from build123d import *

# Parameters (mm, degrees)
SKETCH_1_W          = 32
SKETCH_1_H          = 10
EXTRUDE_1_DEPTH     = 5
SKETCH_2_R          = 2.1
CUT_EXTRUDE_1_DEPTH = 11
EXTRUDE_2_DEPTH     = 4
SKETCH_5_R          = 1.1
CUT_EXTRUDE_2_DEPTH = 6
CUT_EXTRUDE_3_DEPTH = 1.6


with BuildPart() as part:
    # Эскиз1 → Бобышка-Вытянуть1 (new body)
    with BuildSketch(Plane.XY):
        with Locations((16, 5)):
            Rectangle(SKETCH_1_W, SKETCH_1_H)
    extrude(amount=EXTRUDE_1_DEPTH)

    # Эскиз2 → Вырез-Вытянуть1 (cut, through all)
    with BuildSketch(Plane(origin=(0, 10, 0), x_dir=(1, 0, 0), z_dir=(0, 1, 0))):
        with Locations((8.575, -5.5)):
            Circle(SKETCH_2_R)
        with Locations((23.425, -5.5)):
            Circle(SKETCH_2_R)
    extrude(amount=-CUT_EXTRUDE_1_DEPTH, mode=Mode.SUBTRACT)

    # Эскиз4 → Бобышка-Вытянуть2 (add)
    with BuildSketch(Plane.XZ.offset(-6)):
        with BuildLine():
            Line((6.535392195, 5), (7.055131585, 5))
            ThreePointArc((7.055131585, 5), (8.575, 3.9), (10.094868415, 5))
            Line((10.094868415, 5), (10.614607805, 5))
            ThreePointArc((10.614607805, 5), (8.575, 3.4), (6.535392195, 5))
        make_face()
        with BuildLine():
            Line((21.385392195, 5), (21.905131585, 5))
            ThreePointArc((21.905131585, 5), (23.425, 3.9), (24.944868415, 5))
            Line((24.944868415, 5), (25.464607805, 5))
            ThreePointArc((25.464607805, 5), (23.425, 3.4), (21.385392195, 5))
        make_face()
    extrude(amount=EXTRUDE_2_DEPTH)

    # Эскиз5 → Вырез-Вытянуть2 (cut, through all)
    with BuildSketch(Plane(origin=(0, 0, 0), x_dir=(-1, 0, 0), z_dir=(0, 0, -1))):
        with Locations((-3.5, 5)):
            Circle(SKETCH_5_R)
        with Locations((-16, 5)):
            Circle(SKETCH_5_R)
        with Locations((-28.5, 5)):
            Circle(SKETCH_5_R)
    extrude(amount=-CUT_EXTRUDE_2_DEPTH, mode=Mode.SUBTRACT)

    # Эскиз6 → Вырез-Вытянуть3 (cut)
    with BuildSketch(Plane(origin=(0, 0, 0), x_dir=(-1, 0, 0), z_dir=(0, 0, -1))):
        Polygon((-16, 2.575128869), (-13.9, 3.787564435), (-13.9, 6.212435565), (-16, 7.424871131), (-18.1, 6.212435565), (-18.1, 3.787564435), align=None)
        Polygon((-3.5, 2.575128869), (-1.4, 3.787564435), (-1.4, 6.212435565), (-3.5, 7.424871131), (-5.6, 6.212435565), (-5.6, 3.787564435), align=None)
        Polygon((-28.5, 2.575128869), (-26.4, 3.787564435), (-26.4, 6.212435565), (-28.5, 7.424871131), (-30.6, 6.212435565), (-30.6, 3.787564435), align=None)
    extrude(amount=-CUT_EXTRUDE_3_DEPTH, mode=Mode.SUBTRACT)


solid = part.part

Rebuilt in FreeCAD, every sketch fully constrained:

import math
import FreeCAD as App
import Part
import Sketcher

V = App.Vector
Q = App.Units.Quantity

doc = App.newDocument("Part")
body = doc.addObject("PartDesign::Body", "Body")

sketch1 = body.newObject("Sketcher::SketchObject", "Sketch")
sketch1.AttachmentSupport = (doc.getObject("XY_Plane"), [""])
sketch1.MapMode = "FlatFace"
sketch1.addGeometry(Part.LineSegment(V(0, 10, 0), V(0, 0, 0)), False)
sketch1.addGeometry(Part.LineSegment(V(0, 0, 0), V(32, 0, 0)), False)
sketch1.addGeometry(Part.LineSegment(V(32, 0, 0), V(32, 10, 0)), False)
sketch1.addGeometry(Part.LineSegment(V(32, 10, 0), V(0, 10, 0)), False)
sketch1.addConstraint(Sketcher.Constraint("Coincident", 0, 2, 1, 1))
sketch1.addConstraint(Sketcher.Constraint("Coincident", 1, 2, 2, 1))
sketch1.addConstraint(Sketcher.Constraint("Coincident", 2, 2, 3, 1))
sketch1.addConstraint(Sketcher.Constraint("Coincident", 3, 2, 0, 1))
sketch1.addConstraint(Sketcher.Constraint("Vertical", 0))
sketch1.addConstraint(Sketcher.Constraint("Horizontal", 1))
sketch1.addConstraint(Sketcher.Constraint("Vertical", 2))
sketch1.addConstraint(Sketcher.Constraint("Horizontal", 3))
sketch1.addConstraint(Sketcher.Constraint("Coincident", 0, 2, -1, 1))
sketch1.addConstraint(Sketcher.Constraint("DistanceX", 1, 1, 1, 2, Q("32 mm")))
sketch1.addConstraint(Sketcher.Constraint("DistanceY", 0, 2, 0, 1, Q("10 mm")))
pad1 = body.newObject("PartDesign::Pad", "Pad")
pad1.Profile = sketch1
pad1.Length = 5

sketch2 = body.newObject("Sketcher::SketchObject", "Sketch001")
sketch2.AttachmentSupport = (doc.getObject("XZ_Plane"), [""])
sketch2.MapMode = "FlatFace"
sketch2.AttachmentOffset = App.Placement(V(0, 0, -10), App.Rotation())
sketch2.addGeometry(Part.Circle(V(8.575, 5.5, 0), V(0, 0, 1), 2.1), False)
sketch2.addGeometry(Part.Circle(V(23.425, 5.5, 0), V(0, 0, 1), 2.1), False)
sketch2.addConstraint(Sketcher.Constraint("Equal", 0, 1))
sketch2.addConstraint(Sketcher.Constraint("Horizontal", 0, 3, 1, 3))
sketch2.addConstraint(Sketcher.Constraint("Diameter", 0, Q("4.2 mm")))
sketch2.addConstraint(Sketcher.Constraint("DistanceY", -1, 1, 0, 3, Q("5.5 mm")))
sketch2.addConstraint(Sketcher.Constraint("DistanceX", 0, 3, 1, 3, Q("14.85 mm")))
sketch2.addConstraint(Sketcher.Constraint("DistanceX", -1, 1, 0, 3, Q("8.575 mm")))
pocket1 = body.newObject("PartDesign::Pocket", "Pocket")
pocket1.Profile = sketch2
pocket1.Type = "ThroughAll"
pocket1.Reversed = True

sketch3 = body.newObject("Sketcher::SketchObject", "Sketch002")
sketch3.AttachmentSupport = (doc.getObject("XZ_Plane"), [""])
sketch3.MapMode = "FlatFace"
sketch3.AttachmentOffset = App.Placement(V(0, 0, -6), App.Rotation())
sketch3.addGeometry(Part.LineSegment(V(7.055132, 5, 0), V(6.535392, 5, 0)), False)
sketch3.addGeometry(Part.ArcOfCircle(Part.Circle(V(8.575, 5.5, 0), V(0, 0, 1), 2.1), math.radians(-166.225853), math.radians(-13.774147)), False)
sketch3.addGeometry(Part.LineSegment(V(10.614608, 5, 0), V(10.094868, 5, 0)), False)
sketch3.addGeometry(Part.ArcOfCircle(Part.Circle(V(8.575, 5.5, 0), V(0, 0, 1), 1.6), math.radians(-161.790043), math.radians(-18.209957)), False)
sketch3.addGeometry(Part.LineSegment(V(21.905132, 5, 0), V(21.385392, 5, 0)), False)
sketch3.addGeometry(Part.ArcOfCircle(Part.Circle(V(23.425, 5.5, 0), V(0, 0, 1), 2.1), math.radians(-166.225853), math.radians(-13.774147)), False)
sketch3.addGeometry(Part.LineSegment(V(25.464608, 5, 0), V(24.944868, 5, 0)), False)
sketch3.addGeometry(Part.ArcOfCircle(Part.Circle(V(23.425, 5.5, 0), V(0, 0, 1), 1.6), math.radians(-161.790043), math.radians(-18.209957)), False)
sketch3.addConstraint(Sketcher.Constraint("Coincident", 0, 2, 1, 1))
sketch3.addConstraint(Sketcher.Constraint("Coincident", 1, 2, 2, 1))
sketch3.addConstraint(Sketcher.Constraint("Coincident", 2, 2, 3, 2))
sketch3.addConstraint(Sketcher.Constraint("Coincident", 3, 1, 0, 1))
sketch3.addConstraint(Sketcher.Constraint("Coincident", 4, 2, 5, 1))
sketch3.addConstraint(Sketcher.Constraint("Coincident", 5, 2, 6, 1))
sketch3.addConstraint(Sketcher.Constraint("Coincident", 6, 2, 7, 2))
sketch3.addConstraint(Sketcher.Constraint("Coincident", 7, 1, 4, 1))
sketch3.addConstraint(Sketcher.Constraint("Horizontal", 0))
sketch3.addConstraint(Sketcher.Constraint("Horizontal", 2))
sketch3.addConstraint(Sketcher.Constraint("Horizontal", 4))
sketch3.addConstraint(Sketcher.Constraint("Horizontal", 6))
sketch3.addConstraint(Sketcher.Constraint("Coincident", 3, 3, 1, 3))
sketch3.addConstraint(Sketcher.Constraint("Coincident", 7, 3, 5, 3))
sketch3.addConstraint(Sketcher.Constraint("Equal", 1, 5))
sketch3.addConstraint(Sketcher.Constraint("Equal", 3, 7))
sketch3.addConstraint(Sketcher.Constraint("Horizontal", 3, 3, 5, 3))
sketch3.addConstraint(Sketcher.Constraint("Horizontal", 0, 2, 1, 2))
sketch3.addConstraint(Sketcher.Constraint("Horizontal", 3, 1, 4, 2))
sketch3.addConstraint(Sketcher.Constraint("Horizontal", 4, 2, 5, 2))
sketch3.addConstraint(Sketcher.Constraint("Radius", 1, Q("2.1 mm")))
sketch3.addConstraint(Sketcher.Constraint("Radius", 3, Q("1.6 mm")))
sketch3.addConstraint(Sketcher.Constraint("DistanceY", -1, 1, 0, 2, Q("5 mm")))
sketch3.addConstraint(Sketcher.Constraint("DistanceY", -1, 1, 1, 3, Q("5.5 mm")))
sketch3.addConstraint(Sketcher.Constraint("DistanceX", 1, 3, 5, 3, Q("14.85 mm")))
sketch3.addConstraint(Sketcher.Constraint("DistanceX", -1, 1, 1, 3, Q("8.575 mm")))
pad2 = body.newObject("PartDesign::Pad", "Pad001")
pad2.Profile = sketch3
pad2.Length = 4

sketch4 = body.newObject("Sketcher::SketchObject", "Sketch003")
sketch4.AttachmentSupport = (doc.getObject("XY_Plane"), [""])
sketch4.MapMode = "FlatFace"
sketch4.addGeometry(Part.Circle(V(3.5, 5, 0), V(0, 0, 1), 1.1), False)
sketch4.addGeometry(Part.Circle(V(16, 5, 0), V(0, 0, 1), 1.1), False)
sketch4.addGeometry(Part.Circle(V(28.5, 5, 0), V(0, 0, 1), 1.1), False)
sketch4.addConstraint(Sketcher.Constraint("Equal", 0, 1))
sketch4.addConstraint(Sketcher.Constraint("Equal", 1, 2))
sketch4.addConstraint(Sketcher.Constraint("Horizontal", 0, 3, 1, 3))
sketch4.addConstraint(Sketcher.Constraint("Horizontal", 1, 3, 2, 3))
sketch4.addConstraint(Sketcher.Constraint("Diameter", 0, Q("2.2 mm")))
sketch4.addConstraint(Sketcher.Constraint("DistanceY", -1, 1, 0, 3, Q("5 mm")))
sketch4.addConstraint(Sketcher.Constraint("DistanceX", -1, 1, 1, 3, Q("16 mm")))
sketch4.addConstraint(Sketcher.Constraint("DistanceX", 0, 3, 2, 3, Q("25 mm")))
sketch4.addConstraint(Sketcher.Constraint("DistanceX", -1, 1, 0, 3, Q("3.5 mm")))
pocket2 = body.newObject("PartDesign::Pocket", "Pocket001")
pocket2.Profile = sketch4
pocket2.Type = "ThroughAll"
pocket2.Reversed = True

sketch5 = body.newObject("Sketcher::SketchObject", "Sketch004")
sketch5.AttachmentSupport = (doc.getObject("XY_Plane"), [""])
sketch5.MapMode = "FlatFace"
sketch5.addGeometry(Part.LineSegment(V(16, 2.575129, 0), V(13.9, 3.787564, 0)), False)
sketch5.addGeometry(Part.LineSegment(V(13.9, 3.787564, 0), V(13.9, 6.212436, 0)), False)
sketch5.addGeometry(Part.LineSegment(V(13.9, 6.212436, 0), V(16, 7.424871, 0)), False)
sketch5.addGeometry(Part.LineSegment(V(16, 7.424871, 0), V(18.1, 6.212436, 0)), False)
sketch5.addGeometry(Part.LineSegment(V(18.1, 6.212436, 0), V(18.1, 3.787564, 0)), False)
sketch5.addGeometry(Part.LineSegment(V(18.1, 3.787564, 0), V(16, 2.575129, 0)), False)
sketch5.addGeometry(Part.LineSegment(V(3.5, 2.575129, 0), V(1.4, 3.787564, 0)), False)
sketch5.addGeometry(Part.LineSegment(V(1.4, 3.787564, 0), V(1.4, 6.212436, 0)), False)
sketch5.addGeometry(Part.LineSegment(V(1.4, 6.212436, 0), V(3.5, 7.424871, 0)), False)
sketch5.addGeometry(Part.LineSegment(V(3.5, 7.424871, 0), V(5.6, 6.212436, 0)), False)
sketch5.addGeometry(Part.LineSegment(V(5.6, 6.212436, 0), V(5.6, 3.787564, 0)), False)
sketch5.addGeometry(Part.LineSegment(V(5.6, 3.787564, 0), V(3.5, 2.575129, 0)), False)
sketch5.addGeometry(Part.LineSegment(V(28.5, 2.575129, 0), V(26.4, 3.787564, 0)), False)
sketch5.addGeometry(Part.LineSegment(V(26.4, 3.787564, 0), V(26.4, 6.212436, 0)), False)
sketch5.addGeometry(Part.LineSegment(V(26.4, 6.212436, 0), V(28.5, 7.424871, 0)), False)
sketch5.addGeometry(Part.LineSegment(V(28.5, 7.424871, 0), V(30.6, 6.212436, 0)), False)
sketch5.addGeometry(Part.LineSegment(V(30.6, 6.212436, 0), V(30.6, 3.787564, 0)), False)
sketch5.addGeometry(Part.LineSegment(V(30.6, 3.787564, 0), V(28.5, 2.575129, 0)), False)
sketch5.addConstraint(Sketcher.Constraint("Coincident", 0, 2, 1, 1))
sketch5.addConstraint(Sketcher.Constraint("Coincident", 1, 2, 2, 1))
sketch5.addConstraint(Sketcher.Constraint("Coincident", 2, 2, 3, 1))
sketch5.addConstraint(Sketcher.Constraint("Coincident", 3, 2, 4, 1))
sketch5.addConstraint(Sketcher.Constraint("Coincident", 4, 2, 5, 1))
sketch5.addConstraint(Sketcher.Constraint("Coincident", 5, 2, 0, 1))
sketch5.addConstraint(Sketcher.Constraint("Coincident", 6, 2, 7, 1))
sketch5.addConstraint(Sketcher.Constraint("Coincident", 7, 2, 8, 1))
sketch5.addConstraint(Sketcher.Constraint("Coincident", 8, 2, 9, 1))
sketch5.addConstraint(Sketcher.Constraint("Coincident", 9, 2, 10, 1))
sketch5.addConstraint(Sketcher.Constraint("Coincident", 10, 2, 11, 1))
sketch5.addConstraint(Sketcher.Constraint("Coincident", 11, 2, 6, 1))
sketch5.addConstraint(Sketcher.Constraint("Coincident", 12, 2, 13, 1))
sketch5.addConstraint(Sketcher.Constraint("Coincident", 13, 2, 14, 1))
sketch5.addConstraint(Sketcher.Constraint("Coincident", 14, 2, 15, 1))
sketch5.addConstraint(Sketcher.Constraint("Coincident", 15, 2, 16, 1))
sketch5.addConstraint(Sketcher.Constraint("Coincident", 16, 2, 17, 1))
sketch5.addConstraint(Sketcher.Constraint("Coincident", 17, 2, 12, 1))
sketch5.addConstraint(Sketcher.Constraint("Vertical", 1))
sketch5.addConstraint(Sketcher.Constraint("Vertical", 4))
sketch5.addConstraint(Sketcher.Constraint("Vertical", 7))
sketch5.addConstraint(Sketcher.Constraint("Vertical", 10))
sketch5.addConstraint(Sketcher.Constraint("Vertical", 13))
sketch5.addConstraint(Sketcher.Constraint("Vertical", 16))
sketch5.addConstraint(Sketcher.Constraint("Parallel", 0, 3))
sketch5.addConstraint(Sketcher.Constraint("Parallel", 2, 5))
sketch5.addConstraint(Sketcher.Constraint("Parallel", 3, 6))
sketch5.addConstraint(Sketcher.Constraint("Parallel", 5, 8))
sketch5.addConstraint(Sketcher.Constraint("Parallel", 6, 9))
sketch5.addConstraint(Sketcher.Constraint("Parallel", 8, 11))
sketch5.addConstraint(Sketcher.Constraint("Parallel", 9, 12))
sketch5.addConstraint(Sketcher.Constraint("Parallel", 11, 14))
sketch5.addConstraint(Sketcher.Constraint("Parallel", 12, 15))
sketch5.addConstraint(Sketcher.Constraint("Parallel", 14, 17))
sketch5.addConstraint(Sketcher.Constraint("Horizontal", 1, 2, 3, 2))
sketch5.addConstraint(Sketcher.Constraint("Horizontal", 0, 2, 4, 2))
sketch5.addConstraint(Sketcher.Constraint("Horizontal", 4, 2, 6, 2))
sketch5.addConstraint(Sketcher.Constraint("Horizontal", 3, 2, 7, 2))
sketch5.addConstraint(Sketcher.Constraint("Horizontal", 2, 2, 8, 2))
sketch5.addConstraint(Sketcher.Constraint("Horizontal", 7, 2, 9, 2))
sketch5.addConstraint(Sketcher.Constraint("Horizontal", 6, 2, 10, 2))
sketch5.addConstraint(Sketcher.Constraint("Horizontal", 10, 2, 12, 2))
sketch5.addConstraint(Sketcher.Constraint("Horizontal", 9, 2, 13, 2))
sketch5.addConstraint(Sketcher.Constraint("Horizontal", 8, 2, 14, 2))
sketch5.addConstraint(Sketcher.Constraint("Horizontal", 13, 2, 15, 2))
sketch5.addConstraint(Sketcher.Constraint("Horizontal", 12, 2, 16, 2))
sketch5.addConstraint(Sketcher.Constraint("Vertical", 2, 2, 5, 2))
sketch5.addConstraint(Sketcher.Constraint("Angle", 0, Q("150 deg")))
sketch5.addConstraint(Sketcher.Constraint("DistanceX", -1, 1, 2, 2, Q("16 mm")))
sketch5.addConstraint(Sketcher.Constraint("DistanceX", -1, 1, 0, 2, Q("13.9 mm")))
sketch5.addConstraint(Sketcher.Constraint("DistanceX", -1, 1, 6, 2, Q("1.4 mm")))
sketch5.addConstraint(Sketcher.Constraint("DistanceX", -1, 1, 12, 2, Q("26.4 mm")))
sketch5.addConstraint(Sketcher.Constraint("DistanceY", 1, 1, 1, 2, Q("2.424871 mm")))
sketch5.addConstraint(Sketcher.Constraint("DistanceY", -1, 1, 2, 2, Q("7.424871 mm")))
pocket3 = body.newObject("PartDesign::Pocket", "Pocket002")
pocket3.Profile = sketch5
pocket3.Length = 1.6
pocket3.Reversed = True

doc.recompute()
